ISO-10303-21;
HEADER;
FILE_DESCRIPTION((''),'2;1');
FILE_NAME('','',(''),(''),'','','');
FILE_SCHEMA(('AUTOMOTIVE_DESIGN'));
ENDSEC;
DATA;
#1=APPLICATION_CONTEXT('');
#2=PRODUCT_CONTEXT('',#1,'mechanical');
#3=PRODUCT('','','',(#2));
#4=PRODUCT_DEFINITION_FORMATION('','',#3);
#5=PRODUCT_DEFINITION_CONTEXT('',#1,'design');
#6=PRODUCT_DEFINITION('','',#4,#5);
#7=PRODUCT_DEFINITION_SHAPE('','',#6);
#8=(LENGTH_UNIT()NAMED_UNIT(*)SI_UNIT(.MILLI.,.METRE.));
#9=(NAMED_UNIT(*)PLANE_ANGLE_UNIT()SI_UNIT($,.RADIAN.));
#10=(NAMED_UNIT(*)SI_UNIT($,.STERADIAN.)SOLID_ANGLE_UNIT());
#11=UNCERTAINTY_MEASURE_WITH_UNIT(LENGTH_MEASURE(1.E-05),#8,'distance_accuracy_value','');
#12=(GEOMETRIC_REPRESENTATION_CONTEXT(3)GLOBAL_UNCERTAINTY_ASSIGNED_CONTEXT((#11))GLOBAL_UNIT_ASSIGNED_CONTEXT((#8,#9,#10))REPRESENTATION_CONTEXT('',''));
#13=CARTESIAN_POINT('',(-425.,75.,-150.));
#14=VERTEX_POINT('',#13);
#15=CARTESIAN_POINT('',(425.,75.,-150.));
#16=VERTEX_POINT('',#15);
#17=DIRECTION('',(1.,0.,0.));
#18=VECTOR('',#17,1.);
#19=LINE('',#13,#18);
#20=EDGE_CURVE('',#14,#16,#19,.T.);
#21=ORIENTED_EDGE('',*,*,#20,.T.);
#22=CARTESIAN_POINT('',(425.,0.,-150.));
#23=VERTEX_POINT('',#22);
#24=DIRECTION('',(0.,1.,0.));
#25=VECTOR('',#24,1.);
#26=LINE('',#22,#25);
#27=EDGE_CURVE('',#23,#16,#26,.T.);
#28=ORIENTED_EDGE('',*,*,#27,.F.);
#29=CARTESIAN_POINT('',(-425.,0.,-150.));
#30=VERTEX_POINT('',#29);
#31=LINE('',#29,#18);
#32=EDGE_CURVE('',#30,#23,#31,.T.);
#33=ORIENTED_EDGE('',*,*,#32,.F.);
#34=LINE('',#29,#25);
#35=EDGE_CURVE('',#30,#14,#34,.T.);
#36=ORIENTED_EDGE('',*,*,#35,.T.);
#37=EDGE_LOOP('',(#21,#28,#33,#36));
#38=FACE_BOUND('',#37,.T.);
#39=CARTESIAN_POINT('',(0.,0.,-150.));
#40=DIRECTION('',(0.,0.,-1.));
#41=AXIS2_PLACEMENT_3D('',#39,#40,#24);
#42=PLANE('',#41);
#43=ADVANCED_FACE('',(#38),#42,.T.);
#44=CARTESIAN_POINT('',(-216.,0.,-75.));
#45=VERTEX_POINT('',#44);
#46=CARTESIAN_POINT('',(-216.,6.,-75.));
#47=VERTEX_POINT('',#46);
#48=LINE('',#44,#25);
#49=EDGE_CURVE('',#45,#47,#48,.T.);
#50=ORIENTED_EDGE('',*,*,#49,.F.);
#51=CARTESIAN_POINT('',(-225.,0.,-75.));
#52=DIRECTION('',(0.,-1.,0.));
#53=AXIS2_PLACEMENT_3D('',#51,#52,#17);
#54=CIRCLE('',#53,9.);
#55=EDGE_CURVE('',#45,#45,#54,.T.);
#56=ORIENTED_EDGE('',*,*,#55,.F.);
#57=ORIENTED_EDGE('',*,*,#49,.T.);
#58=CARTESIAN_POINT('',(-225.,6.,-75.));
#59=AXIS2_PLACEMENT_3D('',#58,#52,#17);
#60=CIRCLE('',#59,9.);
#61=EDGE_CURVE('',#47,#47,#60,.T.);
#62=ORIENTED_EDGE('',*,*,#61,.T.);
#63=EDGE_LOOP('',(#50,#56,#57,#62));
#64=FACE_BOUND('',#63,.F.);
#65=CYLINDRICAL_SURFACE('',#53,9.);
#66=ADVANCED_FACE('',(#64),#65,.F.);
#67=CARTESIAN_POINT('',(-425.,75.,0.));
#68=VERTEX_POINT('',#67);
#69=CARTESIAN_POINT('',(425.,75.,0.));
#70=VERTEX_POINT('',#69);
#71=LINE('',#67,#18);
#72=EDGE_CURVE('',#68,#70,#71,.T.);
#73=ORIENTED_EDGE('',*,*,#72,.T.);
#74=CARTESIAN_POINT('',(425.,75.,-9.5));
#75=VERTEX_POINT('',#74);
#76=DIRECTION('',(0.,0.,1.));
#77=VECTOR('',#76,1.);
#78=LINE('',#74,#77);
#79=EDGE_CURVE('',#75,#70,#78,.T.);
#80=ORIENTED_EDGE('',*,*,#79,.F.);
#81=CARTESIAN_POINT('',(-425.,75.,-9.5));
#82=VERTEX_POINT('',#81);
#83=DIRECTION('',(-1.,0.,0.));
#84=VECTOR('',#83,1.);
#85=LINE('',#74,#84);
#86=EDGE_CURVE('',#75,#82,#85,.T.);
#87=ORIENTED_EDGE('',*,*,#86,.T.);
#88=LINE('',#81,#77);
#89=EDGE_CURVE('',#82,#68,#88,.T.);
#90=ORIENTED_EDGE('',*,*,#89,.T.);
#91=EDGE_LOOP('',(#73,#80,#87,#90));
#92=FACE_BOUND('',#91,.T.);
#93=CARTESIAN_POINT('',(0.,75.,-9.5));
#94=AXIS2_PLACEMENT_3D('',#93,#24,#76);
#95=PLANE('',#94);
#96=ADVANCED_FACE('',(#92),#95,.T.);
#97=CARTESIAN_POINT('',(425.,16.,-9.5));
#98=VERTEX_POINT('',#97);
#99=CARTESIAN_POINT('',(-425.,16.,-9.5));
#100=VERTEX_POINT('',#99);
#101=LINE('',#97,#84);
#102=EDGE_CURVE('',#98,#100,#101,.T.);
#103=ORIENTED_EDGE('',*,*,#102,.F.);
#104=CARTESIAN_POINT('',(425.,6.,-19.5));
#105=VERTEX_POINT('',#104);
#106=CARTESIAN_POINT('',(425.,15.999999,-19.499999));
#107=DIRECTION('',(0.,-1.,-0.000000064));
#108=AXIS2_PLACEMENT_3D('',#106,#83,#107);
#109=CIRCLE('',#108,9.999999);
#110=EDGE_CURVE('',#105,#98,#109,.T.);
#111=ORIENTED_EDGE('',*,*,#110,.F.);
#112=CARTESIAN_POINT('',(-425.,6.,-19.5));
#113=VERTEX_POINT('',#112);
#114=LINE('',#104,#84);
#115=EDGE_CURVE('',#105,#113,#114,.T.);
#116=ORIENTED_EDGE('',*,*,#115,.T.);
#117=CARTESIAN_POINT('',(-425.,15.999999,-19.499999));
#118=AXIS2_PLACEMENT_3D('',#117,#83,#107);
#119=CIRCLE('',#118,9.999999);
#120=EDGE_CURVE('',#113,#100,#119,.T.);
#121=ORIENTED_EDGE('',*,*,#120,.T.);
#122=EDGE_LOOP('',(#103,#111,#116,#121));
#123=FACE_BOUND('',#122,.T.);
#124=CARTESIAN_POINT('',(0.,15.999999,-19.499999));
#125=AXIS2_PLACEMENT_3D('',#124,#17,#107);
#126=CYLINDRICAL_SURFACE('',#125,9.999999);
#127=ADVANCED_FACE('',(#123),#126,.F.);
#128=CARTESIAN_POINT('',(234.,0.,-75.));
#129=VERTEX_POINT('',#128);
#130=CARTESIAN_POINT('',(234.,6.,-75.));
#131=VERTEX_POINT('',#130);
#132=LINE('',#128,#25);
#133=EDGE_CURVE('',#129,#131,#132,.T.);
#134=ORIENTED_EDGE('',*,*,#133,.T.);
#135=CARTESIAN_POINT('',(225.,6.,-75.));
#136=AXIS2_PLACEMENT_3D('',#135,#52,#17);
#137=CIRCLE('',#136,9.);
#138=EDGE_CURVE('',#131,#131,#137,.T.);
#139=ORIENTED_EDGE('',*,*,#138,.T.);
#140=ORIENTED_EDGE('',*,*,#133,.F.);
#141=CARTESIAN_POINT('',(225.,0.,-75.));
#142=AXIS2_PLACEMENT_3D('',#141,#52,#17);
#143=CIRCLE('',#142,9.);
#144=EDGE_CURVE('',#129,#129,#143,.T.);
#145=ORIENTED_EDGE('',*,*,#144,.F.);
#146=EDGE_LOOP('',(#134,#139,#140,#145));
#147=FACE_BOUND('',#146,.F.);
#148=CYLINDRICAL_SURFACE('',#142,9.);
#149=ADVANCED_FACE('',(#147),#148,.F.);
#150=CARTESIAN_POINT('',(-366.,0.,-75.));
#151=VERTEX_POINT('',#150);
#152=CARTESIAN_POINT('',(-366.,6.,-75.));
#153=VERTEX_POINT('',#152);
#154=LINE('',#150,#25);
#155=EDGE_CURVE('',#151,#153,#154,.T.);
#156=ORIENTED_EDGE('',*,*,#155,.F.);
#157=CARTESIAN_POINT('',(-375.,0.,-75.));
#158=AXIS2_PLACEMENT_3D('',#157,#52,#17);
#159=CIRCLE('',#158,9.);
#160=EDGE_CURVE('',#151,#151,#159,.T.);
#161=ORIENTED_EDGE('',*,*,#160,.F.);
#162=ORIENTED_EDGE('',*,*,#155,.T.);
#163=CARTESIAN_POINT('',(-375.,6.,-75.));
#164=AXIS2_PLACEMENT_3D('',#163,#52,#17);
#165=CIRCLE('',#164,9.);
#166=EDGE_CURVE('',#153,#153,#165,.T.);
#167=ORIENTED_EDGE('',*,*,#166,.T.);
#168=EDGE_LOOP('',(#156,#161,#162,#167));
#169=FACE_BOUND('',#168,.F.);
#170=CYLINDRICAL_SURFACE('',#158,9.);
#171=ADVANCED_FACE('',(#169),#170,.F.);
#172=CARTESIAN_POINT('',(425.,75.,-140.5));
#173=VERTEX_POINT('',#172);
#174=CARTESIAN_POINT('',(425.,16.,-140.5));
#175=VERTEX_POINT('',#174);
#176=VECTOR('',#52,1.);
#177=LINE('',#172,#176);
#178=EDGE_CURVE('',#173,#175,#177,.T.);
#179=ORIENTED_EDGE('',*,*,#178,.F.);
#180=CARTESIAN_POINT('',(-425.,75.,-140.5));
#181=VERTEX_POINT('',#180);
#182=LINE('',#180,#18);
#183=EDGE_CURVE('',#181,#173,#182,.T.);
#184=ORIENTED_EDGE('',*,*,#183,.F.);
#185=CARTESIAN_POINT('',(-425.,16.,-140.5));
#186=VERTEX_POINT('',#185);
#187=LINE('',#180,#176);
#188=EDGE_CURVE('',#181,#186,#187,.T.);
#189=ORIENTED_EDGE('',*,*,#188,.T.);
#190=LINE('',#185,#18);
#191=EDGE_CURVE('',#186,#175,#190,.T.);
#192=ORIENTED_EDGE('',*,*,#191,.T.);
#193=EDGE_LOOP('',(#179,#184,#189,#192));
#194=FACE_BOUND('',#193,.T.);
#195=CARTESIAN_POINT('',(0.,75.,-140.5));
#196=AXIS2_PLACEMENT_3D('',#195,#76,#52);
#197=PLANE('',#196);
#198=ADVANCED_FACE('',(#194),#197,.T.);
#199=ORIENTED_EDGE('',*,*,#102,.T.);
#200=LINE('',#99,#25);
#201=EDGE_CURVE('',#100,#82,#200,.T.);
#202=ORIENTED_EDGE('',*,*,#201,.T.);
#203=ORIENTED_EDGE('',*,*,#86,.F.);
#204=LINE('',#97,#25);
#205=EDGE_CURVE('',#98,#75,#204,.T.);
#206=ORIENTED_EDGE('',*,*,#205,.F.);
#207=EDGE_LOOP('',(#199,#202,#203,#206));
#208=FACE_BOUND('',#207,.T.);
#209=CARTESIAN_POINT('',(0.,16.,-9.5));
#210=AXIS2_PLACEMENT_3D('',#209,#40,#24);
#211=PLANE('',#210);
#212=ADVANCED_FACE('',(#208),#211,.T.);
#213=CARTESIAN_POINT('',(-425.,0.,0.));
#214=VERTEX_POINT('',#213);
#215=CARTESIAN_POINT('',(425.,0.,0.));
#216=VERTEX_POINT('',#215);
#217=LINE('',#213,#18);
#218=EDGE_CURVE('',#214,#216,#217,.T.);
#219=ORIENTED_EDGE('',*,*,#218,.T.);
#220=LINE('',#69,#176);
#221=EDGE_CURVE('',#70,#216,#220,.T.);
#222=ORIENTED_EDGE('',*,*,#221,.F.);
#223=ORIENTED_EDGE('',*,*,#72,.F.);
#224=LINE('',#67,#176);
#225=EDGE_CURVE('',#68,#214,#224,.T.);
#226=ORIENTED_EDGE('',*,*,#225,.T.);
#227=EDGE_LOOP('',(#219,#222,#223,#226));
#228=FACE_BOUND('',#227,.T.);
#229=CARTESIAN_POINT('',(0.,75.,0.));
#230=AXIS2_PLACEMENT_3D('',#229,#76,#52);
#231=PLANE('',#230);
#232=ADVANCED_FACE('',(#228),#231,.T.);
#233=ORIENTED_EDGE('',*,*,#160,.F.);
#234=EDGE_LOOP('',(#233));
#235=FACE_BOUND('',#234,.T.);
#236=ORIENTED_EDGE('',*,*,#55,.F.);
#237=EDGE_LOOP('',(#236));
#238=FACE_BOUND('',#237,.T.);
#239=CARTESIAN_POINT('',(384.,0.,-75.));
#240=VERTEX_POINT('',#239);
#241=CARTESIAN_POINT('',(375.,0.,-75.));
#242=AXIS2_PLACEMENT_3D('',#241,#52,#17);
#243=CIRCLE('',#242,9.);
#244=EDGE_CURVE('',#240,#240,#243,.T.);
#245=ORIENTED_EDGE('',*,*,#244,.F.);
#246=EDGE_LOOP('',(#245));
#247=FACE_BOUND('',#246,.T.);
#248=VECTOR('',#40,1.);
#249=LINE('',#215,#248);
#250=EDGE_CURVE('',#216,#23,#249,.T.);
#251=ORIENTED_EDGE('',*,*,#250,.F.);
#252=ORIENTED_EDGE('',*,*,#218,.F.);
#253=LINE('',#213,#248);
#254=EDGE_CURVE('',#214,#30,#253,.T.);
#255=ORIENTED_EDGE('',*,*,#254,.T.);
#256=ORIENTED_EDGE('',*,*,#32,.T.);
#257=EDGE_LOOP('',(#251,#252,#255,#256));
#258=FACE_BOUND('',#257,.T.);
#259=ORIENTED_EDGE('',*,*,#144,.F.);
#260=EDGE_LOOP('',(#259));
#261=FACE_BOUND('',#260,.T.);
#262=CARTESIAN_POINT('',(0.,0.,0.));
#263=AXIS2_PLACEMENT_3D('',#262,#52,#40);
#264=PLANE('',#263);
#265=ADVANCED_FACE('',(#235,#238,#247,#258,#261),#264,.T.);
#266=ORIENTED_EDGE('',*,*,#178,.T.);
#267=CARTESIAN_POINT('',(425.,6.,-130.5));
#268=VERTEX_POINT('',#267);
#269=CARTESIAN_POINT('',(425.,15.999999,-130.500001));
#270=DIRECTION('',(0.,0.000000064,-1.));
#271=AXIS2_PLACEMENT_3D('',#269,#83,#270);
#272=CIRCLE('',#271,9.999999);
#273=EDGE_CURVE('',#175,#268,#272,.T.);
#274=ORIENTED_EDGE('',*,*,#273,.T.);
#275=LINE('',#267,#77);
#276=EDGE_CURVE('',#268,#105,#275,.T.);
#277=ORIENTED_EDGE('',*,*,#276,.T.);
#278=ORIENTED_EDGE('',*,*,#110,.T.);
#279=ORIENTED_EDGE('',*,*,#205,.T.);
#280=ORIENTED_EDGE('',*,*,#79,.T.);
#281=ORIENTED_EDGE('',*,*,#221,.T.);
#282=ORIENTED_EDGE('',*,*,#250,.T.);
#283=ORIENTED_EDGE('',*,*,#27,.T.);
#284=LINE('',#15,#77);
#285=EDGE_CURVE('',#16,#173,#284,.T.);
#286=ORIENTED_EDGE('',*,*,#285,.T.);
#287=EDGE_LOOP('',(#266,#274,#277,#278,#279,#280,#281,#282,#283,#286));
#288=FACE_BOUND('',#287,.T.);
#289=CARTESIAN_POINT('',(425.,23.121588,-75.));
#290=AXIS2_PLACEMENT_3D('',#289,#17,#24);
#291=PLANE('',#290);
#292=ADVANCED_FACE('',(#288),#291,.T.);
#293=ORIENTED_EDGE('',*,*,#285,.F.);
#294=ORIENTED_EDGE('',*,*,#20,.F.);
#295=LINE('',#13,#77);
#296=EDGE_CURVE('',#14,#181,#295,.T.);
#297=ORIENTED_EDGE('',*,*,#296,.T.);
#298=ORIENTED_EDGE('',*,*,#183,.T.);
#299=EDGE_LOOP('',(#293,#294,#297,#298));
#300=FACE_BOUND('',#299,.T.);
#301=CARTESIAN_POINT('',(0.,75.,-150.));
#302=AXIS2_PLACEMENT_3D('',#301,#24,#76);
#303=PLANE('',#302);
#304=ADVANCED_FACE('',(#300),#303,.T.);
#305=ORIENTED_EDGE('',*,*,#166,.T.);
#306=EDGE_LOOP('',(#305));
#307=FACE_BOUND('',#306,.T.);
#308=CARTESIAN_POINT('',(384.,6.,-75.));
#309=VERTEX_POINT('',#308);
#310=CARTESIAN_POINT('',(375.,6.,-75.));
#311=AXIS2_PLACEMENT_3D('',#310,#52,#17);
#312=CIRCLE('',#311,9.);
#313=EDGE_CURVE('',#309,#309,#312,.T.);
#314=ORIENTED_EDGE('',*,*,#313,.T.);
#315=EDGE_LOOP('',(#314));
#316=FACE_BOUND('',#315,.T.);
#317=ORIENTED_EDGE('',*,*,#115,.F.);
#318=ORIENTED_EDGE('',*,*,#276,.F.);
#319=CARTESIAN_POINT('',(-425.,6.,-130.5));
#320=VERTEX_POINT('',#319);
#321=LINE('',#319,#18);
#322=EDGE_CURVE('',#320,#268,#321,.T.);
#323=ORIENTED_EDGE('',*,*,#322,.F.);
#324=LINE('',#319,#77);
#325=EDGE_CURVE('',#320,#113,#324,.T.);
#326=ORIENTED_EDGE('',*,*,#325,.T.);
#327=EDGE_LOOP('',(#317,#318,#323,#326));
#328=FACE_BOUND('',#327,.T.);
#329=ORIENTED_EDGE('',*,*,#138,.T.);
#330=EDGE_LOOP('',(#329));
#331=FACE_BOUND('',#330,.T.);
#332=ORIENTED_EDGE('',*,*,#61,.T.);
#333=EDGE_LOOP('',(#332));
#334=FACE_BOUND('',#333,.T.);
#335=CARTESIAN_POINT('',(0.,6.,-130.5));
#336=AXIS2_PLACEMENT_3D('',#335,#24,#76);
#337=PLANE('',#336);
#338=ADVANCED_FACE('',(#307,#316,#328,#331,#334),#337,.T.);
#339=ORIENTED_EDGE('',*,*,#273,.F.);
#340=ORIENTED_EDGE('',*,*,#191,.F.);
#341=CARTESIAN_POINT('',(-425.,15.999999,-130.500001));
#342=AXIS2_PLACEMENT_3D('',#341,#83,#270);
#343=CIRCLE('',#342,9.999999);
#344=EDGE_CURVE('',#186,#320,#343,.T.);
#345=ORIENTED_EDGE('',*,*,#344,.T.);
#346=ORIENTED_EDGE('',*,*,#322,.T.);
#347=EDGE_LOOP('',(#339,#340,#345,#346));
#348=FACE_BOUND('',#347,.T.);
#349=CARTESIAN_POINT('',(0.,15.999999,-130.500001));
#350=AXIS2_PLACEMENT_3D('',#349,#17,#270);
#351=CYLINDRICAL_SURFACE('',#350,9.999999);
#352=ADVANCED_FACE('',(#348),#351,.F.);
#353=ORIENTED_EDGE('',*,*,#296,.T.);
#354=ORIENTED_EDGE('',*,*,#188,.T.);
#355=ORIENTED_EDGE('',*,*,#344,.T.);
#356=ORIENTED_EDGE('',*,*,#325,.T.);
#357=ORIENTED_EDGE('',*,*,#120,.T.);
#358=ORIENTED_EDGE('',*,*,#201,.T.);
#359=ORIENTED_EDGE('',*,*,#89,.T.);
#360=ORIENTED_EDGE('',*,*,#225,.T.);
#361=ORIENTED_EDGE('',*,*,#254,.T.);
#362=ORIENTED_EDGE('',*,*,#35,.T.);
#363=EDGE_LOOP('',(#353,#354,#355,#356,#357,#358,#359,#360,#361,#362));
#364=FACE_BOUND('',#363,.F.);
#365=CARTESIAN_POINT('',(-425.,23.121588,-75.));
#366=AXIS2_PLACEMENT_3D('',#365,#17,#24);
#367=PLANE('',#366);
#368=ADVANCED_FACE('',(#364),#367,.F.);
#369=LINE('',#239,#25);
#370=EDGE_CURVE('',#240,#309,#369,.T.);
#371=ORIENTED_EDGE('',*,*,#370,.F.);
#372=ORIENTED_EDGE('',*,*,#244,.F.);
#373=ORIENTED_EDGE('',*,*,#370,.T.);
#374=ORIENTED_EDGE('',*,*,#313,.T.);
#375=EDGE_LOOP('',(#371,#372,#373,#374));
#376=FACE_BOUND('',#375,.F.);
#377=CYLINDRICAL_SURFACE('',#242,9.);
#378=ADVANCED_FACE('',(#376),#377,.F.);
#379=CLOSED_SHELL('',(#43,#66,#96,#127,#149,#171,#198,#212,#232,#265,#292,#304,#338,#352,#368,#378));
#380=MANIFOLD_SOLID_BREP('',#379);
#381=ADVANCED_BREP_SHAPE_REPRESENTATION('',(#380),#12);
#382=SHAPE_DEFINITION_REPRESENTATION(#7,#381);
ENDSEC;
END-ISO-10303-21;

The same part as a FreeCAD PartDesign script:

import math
import FreeCAD as App
import Part
import Sketcher
from FreeCAD import Vector
Q = App.Units.Quantity

doc = App.newDocument("Part")
params = doc.addObject("Spreadsheet::Sheet", "Params")
for row, (alias, value) in enumerate([
    ("sketch1_radius", "9.999999 mm"),
    ("sketch1_width", "75 mm"),
    ("sketch1_width2", "59 mm"),
    ("sketch1_height", "150 mm"),
    ("sketch1_height2", "111 mm"),
    ("pad1_length", "850 mm"),
    ("sketch2_diameter", "18 mm"),
    ("pocket1_length", "25 mm"),
], start=1):
    params.set(f"A{row}", alias)
    params.set(f"B{row}", "=" + value)
    params.setAlias(f"B{row}", alias)

body = doc.addObject("PartDesign::Body", "Body")

sketch1 = body.newObject("Sketcher::SketchObject", "Sketch")
sketch1.AttachmentSupport = (doc.getObject("YZ_Plane"), [""])
sketch1.MapMode = "FlatFace"
sketch1.addGeometry([
    Part.LineSegment(Vector(75, -10, 0), Vector(75, 0, 0)),
    Part.LineSegment(Vector(75, 0, 0), Vector(0, 0, 0)),
    Part.LineSegment(Vector(0, 0, 0), Vector(0, -150, 0)),
    Part.LineSegment(Vector(0, -150, 0), Vector(75, -150, 0)),
    Part.LineSegment(Vector(75, -150, 0), Vector(75, -140, 0)),
    Part.LineSegment(Vector(75, -140, 0), Vector(16, -140, 0)),
    Part.ArcOfCircle(Part.Circle(Vector(16, -131, 0), Vector(0, 0, 1), 10), math.radians(180), math.radians(270)),
    Part.LineSegment(Vector(6, -130, 0), Vector(6, -20, 0)),
    Part.ArcOfCircle(Part.Circle(Vector(16, -19, 0), Vector(0, 0, 1), 10), math.radians(90), math.radians(180)),
    Part.LineSegment(Vector(16, -10, 0), Vector(75, -10, 0)),
], False)
sketch1.addConstraint([
    Sketcher.Constraint("Coincident", 0, 2, 1, 1),
    Sketcher.Constraint("Coincident", 1, 2, 2, 1),
    Sketcher.Constraint("Coincident", 2, 2, 3, 1),
    Sketcher.Constraint("Coincident", 3, 2, 4, 1),
    Sketcher.Constraint("Coincident", 4, 2, 5, 1),
    Sketcher.Constraint("Tangent", 5, 2, 6, 2),
    Sketcher.Constraint("Tangent", 6, 1, 7, 1),
    Sketcher.Constraint("Tangent", 7, 2, 8, 2),
    Sketcher.Constraint("Tangent", 8, 1, 9, 1),
    Sketcher.Constraint("Coincident", 9, 2, 0, 1),
    Sketcher.Constraint("Vertical", 0),
    Sketcher.Constraint("Horizontal", 1),
    Sketcher.Constraint("Vertical", 2),
    Sketcher.Constraint("Horizontal", 3),
    Sketcher.Constraint("Vertical", 4),
    Sketcher.Constraint("Horizontal", 5),
    Sketcher.Constraint("Vertical", 7),
    Sketcher.Constraint("Horizontal", 9),
    Sketcher.Constraint("Coincident", 1, 2, -1, 1),
    Sketcher.Constraint("Equal", 6, 8),
    Sketcher.Constraint("Vertical", 0, 2, 3, 2),
    Sketcher.Constraint("Equal", 0, 4),
    Sketcher.Constraint("Radius", 6, Q("9.999999 mm")),
    Sketcher.Constraint("DistanceX", 1, 2, 1, 1, Q("75 mm")),
    Sketcher.Constraint("DistanceX", 5, 2, 5, 1, Q("59 mm")),
    Sketcher.Constraint("DistanceY", 2, 2, 2, 1, Q("150 mm")),
    Sketcher.Constraint("DistanceY", 7, 1, 7, 2, Q("111 mm")),
])
sketch1.setExpression("Constraints[22]", "Params.sketch1_radius")
sketch1.setExpression("Constraints[23]", "Params.sketch1_width")
sketch1.setExpression("Constraints[24]", "Params.sketch1_width2")
sketch1.setExpression("Constraints[25]", "Params.sketch1_height")
sketch1.setExpression("Constraints[26]", "Params.sketch1_height2")
pad1 = body.newObject("PartDesign::Pad", "Pad")
pad1.Profile = sketch1
pad1.setExpression("Length", "Params.pad1_length")
pad1.Midplane = True

sketch2 = body.newObject("Sketcher::SketchObject", "Sketch001")
sketch2.AttachmentSupport = (doc.getObject("XZ_Plane"), [""])
sketch2.MapMode = "FlatFace"
sketch2.addGeometry([
    Part.Circle(Vector(-375, -75, 0), Vector(0, 0, 1), 9),
    Part.Circle(Vector(-225, -75, 0), Vector(0, 0, 1), 9),
    Part.Circle(Vector(225, -75, 0), Vector(0, 0, 1), 9),
    Part.Circle(Vector(375, -75, 0), Vector(0, 0, 1), 9),
], False)
sketch2.addConstraint([
    Sketcher.Constraint("Equal", 0, 1),
    Sketcher.Constraint("Equal", 1, 2),
    Sketcher.Constraint("Equal", 2, 3),
    Sketcher.Constraint("Symmetric", 1, 3, 2, 3, -2),
    Sketcher.Constraint("Symmetric", 0, 3, 3, 3, -2),
    Sketcher.Constraint("Horizontal", 0, 3, 1, 3),
    Sketcher.Constraint("Diameter", 0, Q("18 mm")),
    Sketcher.Constraint("DistanceX", 0, 3, -1, 1, Q("375 mm")),
    Sketcher.Constraint("DistanceY", 0, 3, -1, 1, Q("75 mm")),
    Sketcher.Constraint("DistanceX", 1, 3, -1, 1, Q("225 mm")),
])
sketch2.setExpression("Constraints[6]", "Params.sketch2_diameter")
pocket1 = body.newObject("PartDesign::Pocket", "Pocket")
pocket1.Profile = sketch2
pocket1.setExpression("Length", "Params.pocket1_length")

doc.recompute()
